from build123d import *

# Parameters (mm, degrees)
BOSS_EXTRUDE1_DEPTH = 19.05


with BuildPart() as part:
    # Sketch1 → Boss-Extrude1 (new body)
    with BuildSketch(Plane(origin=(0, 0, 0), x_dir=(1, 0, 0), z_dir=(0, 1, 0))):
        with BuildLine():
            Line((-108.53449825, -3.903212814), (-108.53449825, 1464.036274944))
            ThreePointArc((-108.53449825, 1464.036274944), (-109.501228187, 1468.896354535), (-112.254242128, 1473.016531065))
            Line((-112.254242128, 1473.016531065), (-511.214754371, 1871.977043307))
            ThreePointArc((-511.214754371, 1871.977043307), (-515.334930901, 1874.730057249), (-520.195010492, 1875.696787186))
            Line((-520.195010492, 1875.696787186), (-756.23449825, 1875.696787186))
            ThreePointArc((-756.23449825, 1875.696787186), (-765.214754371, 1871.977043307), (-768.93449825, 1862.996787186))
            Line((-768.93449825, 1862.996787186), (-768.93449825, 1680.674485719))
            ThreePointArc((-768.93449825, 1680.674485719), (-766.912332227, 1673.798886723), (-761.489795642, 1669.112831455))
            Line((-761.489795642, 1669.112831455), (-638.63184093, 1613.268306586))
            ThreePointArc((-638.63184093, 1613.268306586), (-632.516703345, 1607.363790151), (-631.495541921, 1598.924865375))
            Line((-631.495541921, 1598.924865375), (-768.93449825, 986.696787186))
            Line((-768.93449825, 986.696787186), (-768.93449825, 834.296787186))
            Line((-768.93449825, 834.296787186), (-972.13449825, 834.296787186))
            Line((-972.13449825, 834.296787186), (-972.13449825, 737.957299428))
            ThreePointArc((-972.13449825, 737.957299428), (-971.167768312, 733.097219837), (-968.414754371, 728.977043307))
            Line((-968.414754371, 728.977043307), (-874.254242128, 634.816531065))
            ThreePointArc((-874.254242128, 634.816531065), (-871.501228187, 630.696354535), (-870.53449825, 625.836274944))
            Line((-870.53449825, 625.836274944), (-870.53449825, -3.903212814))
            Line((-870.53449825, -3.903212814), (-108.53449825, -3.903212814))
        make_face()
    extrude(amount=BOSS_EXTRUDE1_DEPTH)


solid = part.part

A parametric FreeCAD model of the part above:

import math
import FreeCAD as App
import Part
import Sketcher

V = App.Vector
Q = App.Units.Quantity

doc = App.newDocument("Part")
body = doc.addObject("PartDesign::Body", "Body")

# Sketch on XZ plane
sketch1 = body.newObject("Sketcher::SketchObject", "Sketch")
sketch1.AttachmentSupport = (doc.getObject("XZ_Plane"), [""])
sketch1.MapMode = "FlatFace"
sketch1.addGeometry([
    Part.LineSegment(V(-109, 4, 0), V(-109, -1464, 0)),  # 0
    Part.ArcOfCircle(Part.Circle(V(-121, -1464, 0), V(0, 0, 1), 13), math.radians(-45), math.radians(0)),  # 1
    Part.LineSegment(V(-112, -1473, 0), V(-511, -1872, 0)),  # 2
    Part.ArcOfCircle(Part.Circle(V(-520, -1863, 0), V(0, 0, 1), 13), math.radians(-90), math.radians(-45)),  # 3
    Part.LineSegment(V(-520, -1876, 0), V(-756, -1876, 0)),  # 4
    Part.ArcOfCircle(Part.Circle(V(-756, -1863, 0), V(0, 0, 1), 13), math.radians(180), math.radians(270)),  # 5
    Part.LineSegment(V(-769, -1863, 0), V(-769, -1681, 0)),  # 6
    Part.ArcOfCircle(Part.Circle(V(-756, -1681, 0), V(0, 0, 1), 13), math.radians(114), math.radians(180)),  # 7
    Part.LineSegment(V(-761, -1669, 0), V(-639, -1613, 0)),  # 8
    Part.ArcOfCircle(Part.Circle(V(-644, -1602, 0), V(0, 0, 1), 13), math.radians(-66), math.radians(13)),  # 9
    Part.LineSegment(V(-631, -1599, 0), V(-769, -987, 0)),  # 10
    Part.LineSegment(V(-769, -987, 0), V(-769, -834, 0)),  # 11
    Part.LineSegment(V(-769, -834, 0), V(-972, -834, 0)),  # 12
    Part.LineSegment(V(-972, -834, 0), V(-972, -738, 0)),  # 13
    Part.ArcOfCircle(Part.Circle(V(-959, -738, 0), V(0, 0, 1), 13), math.radians(135), math.radians(180)),  # 14
    Part.LineSegment(V(-968, -729, 0), V(-874, -635, 0)),  # 15
    Part.ArcOfCircle(Part.Circle(V(-883, -626, 0), V(0, 0, 1), 13), math.radians(-45), math.radians(0)),  # 16
    Part.LineSegment(V(-871, -626, 0), V(-871, 4, 0)),  # 17
    Part.LineSegment(V(-871, 4, 0), V(-109, 4, 0)),  # 18
], False)
sketch1.addConstraint([
    Sketcher.Constraint("Tangent", 0, 2, 1, 2),
    Sketcher.Constraint("Tangent", 1, 1, 2, 1),
    Sketcher.Constraint("Tangent", 2, 2, 3, 2),
    Sketcher.Constraint("Tangent", 3, 1, 4, 1),
    Sketcher.Constraint("Tangent", 4, 2, 5, 2),
    Sketcher.Constraint("Tangent", 5, 1, 6, 1),
    Sketcher.Constraint("Tangent", 6, 2, 7, 2),
    Sketcher.Constraint("Tangent", 7, 1, 8, 1),
    Sketcher.Constraint("Tangent", 8, 2, 9, 1),
    Sketcher.Constraint("Tangent", 9, 2, 10, 1),
    Sketcher.Constraint("Coincident", 10, 2, 11, 1),
    Sketcher.Constraint("Coincident", 11, 2, 12, 1),
    Sketcher.Constraint("Coincident", 12, 2, 13, 1),
    Sketcher.Constraint("Tangent", 13, 2, 14, 2),
    Sketcher.Constraint("Tangent", 14, 1, 15, 1),
    Sketcher.Constraint("Tangent", 15, 2, 16, 1),
    Sketcher.Constraint("Tangent", 16, 2, 17, 1),
    Sketcher.Constraint("Coincident", 17, 2, 18, 1),
    Sketcher.Constraint("Coincident", 18, 2, 0, 1),
    Sketcher.Constraint("Vertical", 0),
    Sketcher.Constraint("Horizontal", 4),
    Sketcher.Constraint("Vertical", 6),
    Sketcher.Constraint("Vertical", 11),
    Sketcher.Constraint("Horizontal", 12),
    Sketcher.Constraint("Vertical", 13),
    Sketcher.Constraint("Vertical", 17),
    Sketcher.Constraint("Horizontal", 18),
    Sketcher.Constraint("Equal", 1, 3),
    Sketcher.Constraint("Equal", 3, 5),
    Sketcher.Constraint("Equal", 5, 7),
    Sketcher.Constraint("Equal", 7, 9),
    Sketcher.Constraint("Equal", 9, 14),
    Sketcher.Constraint("Equal", 14, 16),
    Sketcher.Constraint("Parallel", 2, 15),
    Sketcher.Constraint("Vertical", 6, 2, 10, 2),
    Sketcher.Constraint("Radius", 1, Q("0.5 in")),
    Sketcher.Constraint("DistanceX", 12, 2, 12, 1, Q("8 in")),
    Sketcher.Constraint("DistanceX", 18, 1, 18, 2, Q("30 in")),
    Sketcher.Constraint("DistanceY", 11, 1, 11, 2, Q("6 in")),
    Sketcher.Constraint("Angle", 2, Q("-135 deg")),
    Sketcher.Constraint("DistanceX", 5, 3, 1, 3, Q("25 in")),
    Sketcher.Constraint("DistanceY", 1, 3, 16, 3, Q("33 in")),
    Sketcher.Constraint("DistanceY", 11, 2, 18, 2, Q("33 in")),
    Sketcher.Constraint("DistanceY", 6, 1, 6, 2, 182.322301),
    Sketcher.Constraint("DistanceX", 1, 3, -1, 1, 121.234498),
    Sketcher.Constraint("DistanceY", 14, 3, -1, 1, 737.957299),
    Sketcher.Constraint("DistanceX", 8, 2, 9, 2, 7.136299),
    Sketcher.Constraint("DistanceX", 4, 2, 4, 1, 236.039488),
    Sketcher.Constraint("DistanceY", 0, 2, 0, 1, 1467.939488),
    Sketcher.Constraint("DistanceX", 9, 3, -1, 1, 643.887138),
])
pad1 = body.newObject("PartDesign::Pad", "Pad")
pad1.Profile = sketch1
pad1.Length = Q("0.75 in")
pad1.Reversed = True

doc.recompute()
